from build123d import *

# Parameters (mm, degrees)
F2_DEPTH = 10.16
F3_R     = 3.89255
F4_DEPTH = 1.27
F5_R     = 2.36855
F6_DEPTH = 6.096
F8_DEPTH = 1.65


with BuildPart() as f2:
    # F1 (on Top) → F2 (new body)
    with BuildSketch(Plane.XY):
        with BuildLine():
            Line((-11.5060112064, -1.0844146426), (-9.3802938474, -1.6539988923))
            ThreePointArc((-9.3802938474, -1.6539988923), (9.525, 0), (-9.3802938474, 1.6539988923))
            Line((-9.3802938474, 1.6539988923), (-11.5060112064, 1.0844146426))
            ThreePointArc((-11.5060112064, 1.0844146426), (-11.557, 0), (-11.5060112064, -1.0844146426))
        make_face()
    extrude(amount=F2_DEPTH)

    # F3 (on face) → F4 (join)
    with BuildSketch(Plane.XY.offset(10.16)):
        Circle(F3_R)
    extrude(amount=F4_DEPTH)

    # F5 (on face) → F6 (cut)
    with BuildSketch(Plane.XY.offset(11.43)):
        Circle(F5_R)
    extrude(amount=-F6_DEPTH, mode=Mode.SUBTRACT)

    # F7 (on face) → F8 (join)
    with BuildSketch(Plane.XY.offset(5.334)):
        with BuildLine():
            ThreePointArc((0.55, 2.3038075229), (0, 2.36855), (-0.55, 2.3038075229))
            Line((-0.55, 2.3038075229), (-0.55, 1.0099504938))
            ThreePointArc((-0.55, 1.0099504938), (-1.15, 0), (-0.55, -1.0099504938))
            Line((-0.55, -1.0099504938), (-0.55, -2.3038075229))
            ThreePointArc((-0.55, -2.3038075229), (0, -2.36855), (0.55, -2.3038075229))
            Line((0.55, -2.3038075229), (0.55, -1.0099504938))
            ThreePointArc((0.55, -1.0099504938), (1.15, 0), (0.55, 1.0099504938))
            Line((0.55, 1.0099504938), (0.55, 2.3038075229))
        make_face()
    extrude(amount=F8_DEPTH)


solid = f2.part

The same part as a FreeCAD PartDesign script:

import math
import FreeCAD as App
import Part
import Sketcher
Q = App.Units.Quantity

doc = App.newDocument("Part")
body = doc.addObject("PartDesign::Body", "Body")

sketch1 = body.newObject("Sketcher::SketchObject", "Sketch")
sketch1.AttachmentSupport = (doc.getObject("XY_Plane"), [""])
sketch1.MapMode = "FlatFace"
sketch1.addGeometry([
    Part.LineSegment(App.Vector(-11.506011, -1.084415, 0), App.Vector(-9.380294, -1.653999, 0)),
    Part.ArcOfCircle(Part.Circle(App.Vector(0, 0, 0), App.Vector(0, 0, 1), 9.525), math.radians(-170), math.radians(170)),
    Part.LineSegment(App.Vector(-9.380294, 1.653999, 0), App.Vector(-11.506011, 1.084415, 0)),
    Part.ArcOfCircle(Part.Circle(App.Vector(0, 0, 0), App.Vector(0, 0, 1), 11.557), math.radians(174.615911), math.radians(185.384089)),
], False)
sketch1.addConstraint([
    Sketcher.Constraint("Coincident", 0, 2, 1, 1),
    Sketcher.Constraint("Coincident", 1, 2, 2, 1),
    Sketcher.Constraint("Coincident", 2, 2, 3, 1),
    Sketcher.Constraint("Coincident", 3, 2, 0, 1),
    Sketcher.Constraint("Coincident", 1, 3, -1, 1),
    Sketcher.Constraint("Coincident", 3, 3, -1, 1),
    Sketcher.Constraint("Vertical", 0, 2, 1, 2),
    Sketcher.Constraint("Vertical", 2, 2, 3, 2),
    Sketcher.Constraint("Angle", 0, Q("-15 deg")),
    Sketcher.Constraint("Radius", 1, Q("0.375 in")),
    Sketcher.Constraint("Radius", 3, Q("0.455 in")),
    Sketcher.Constraint("DistanceY", 0, 2, -1, 1, 1.653999),
])
pad1 = body.newObject("PartDesign::Pad", "Pad")
pad1.Profile = sketch1
pad1.Length = Q("0.4 in")

sketch2 = body.newObject("Sketcher::SketchObject", "Sketch001")
sketch2.AttachmentSupport = (doc.getObject("XY_Plane"), [""])
sketch2.MapMode = "FlatFace"
sketch2.AttachmentOffset = App.Placement(App.Vector(0, 0, 0.4 * 25.4), App.Rotation())
sketch2.addGeometry(Part.Circle(App.Vector(0, 0, 0), App.Vector(0, 0, 1), 3.89255), False)
sketch2.addConstraint([
    Sketcher.Constraint("Coincident", 0, 3, -1, 1),
    Sketcher.Constraint("Diameter", 0, Q("0.3065 in")),
])
pad2 = body.newObject("PartDesign::Pad", "Pad001")
pad2.Profile = sketch2
pad2.Length = Q("0.05 in")

sketch3 = body.newObject("Sketcher::SketchObject", "Sketch002")
sketch3.AttachmentSupport = (doc.getObject("XY_Plane"), [""])
sketch3.MapMode = "FlatFace"
sketch3.AttachmentOffset = App.Placement(App.Vector(0, 0, 0.45 * 25.4), App.Rotation())
sketch3.addGeometry(Part.Circle(App.Vector(0, 0, 0), App.Vector(0, 0, 1), 2.36855), False)
sketch3.addConstraint([
    Sketcher.Constraint("Coincident", 0, 3, -1, 1),
    Sketcher.Constraint("Diameter", 0, Q("0.1865 in")),
])
pocket1 = body.newObject("PartDesign::Pocket", "Pocket")
pocket1.Profile = sketch3
pocket1.Length = Q("0.24 in")

sketch4 = body.newObject("Sketcher::SketchObject", "Sketch003")
sketch4.AttachmentSupport = (doc.getObject("XY_Plane"), [""])
sketch4.MapMode = "FlatFace"
sketch4.AttachmentOffset = App.Placement(App.Vector(0, 0, 0.21 * 25.4), App.Rotation())
sketch4.addGeometry([
    Part.ArcOfCircle(Part.Circle(App.Vector(0, 0, 0), App.Vector(0, 0, 1), 2.36855), math.radians(76.572806), math.radians(103.427194)),
    Part.LineSegment(App.Vector(-0.55, 2.303808, 0), App.Vector(-0.55, 1.00995, 0)),
    Part.ArcOfCircle(Part.Circle(App.Vector(0, 0, 0), App.Vector(0, 0, 1), 1.15), math.radians(118.571878), math.radians(241.428122)),
    Part.LineSegment(App.Vector(-0.55, -1.00995, 0), App.Vector(-0.55, -2.303808, 0)),
    Part.ArcOfCircle(Part.Circle(App.Vector(0, 0, 0), App.Vector(0, 0, 1), 2.36855), math.radians(-103.427194), math.radians(-76.572806)),
    Part.LineSegment(App.Vector(0.55, -2.303808, 0), App.Vector(0.55, -1.00995, 0)),
    Part.ArcOfCircle(Part.Circle(App.Vector(0, 0, 0), App.Vector(0, 0, 1), 1.15), math.radians(-61.428122), math.radians(61.428122)),
    Part.LineSegment(App.Vector(0.55, 1.00995, 0), App.Vector(0.55, 2.303808, 0)),
], False)
sketch4.addConstraint([
    Sketcher.Constraint("Coincident", 0, 2, 1, 1),
    Sketcher.Constraint("Coincident", 1, 2, 2, 1),
    Sketcher.Constraint("Coincident", 2, 2, 3, 1),
    Sketcher.Constraint("Coincident", 3, 2, 4, 1),
    Sketcher.Constraint("Coincident", 4, 2, 5, 1),
    Sketcher.Constraint("Coincident", 5, 2, 6, 1),
    Sketcher.Constraint("Coincident", 6, 2, 7, 1),
    Sketcher.Constraint("Coincident", 7, 2, 0, 1),
    Sketcher.Constraint("Vertical", 1),
    Sketcher.Constraint("Vertical", 3),
    Sketcher.Constraint("Vertical", 5),
    Sketcher.Constraint("Vertical", 7),
    Sketcher.Constraint("Coincident", 0, 3, -1, 1),
    Sketcher.Constraint("Coincident", 2, 3, -1, 1),
    Sketcher.Constraint("Coincident", 4, 3, -1, 1),
    Sketcher.Constraint("Coincident", 6, 3, -1, 1),
    Sketcher.Constraint("Equal", 0, 4),
    Sketcher.Constraint("Equal", 2, 6),
    Sketcher.Constraint("Horizontal", 3, 2, 4, 2),
    Sketcher.Constraint("Horizontal", 1, 2, 6, 2),
    Sketcher.Constraint("Vertical", 1, 2, 2, 2),
    Sketcher.Constraint("Radius", 2, 1.15),
    Sketcher.Constraint("Radius", 0, 2.36855),
    Sketcher.Constraint("DistanceX", 0, 2, -1, 1, 0.55),
])
pad3 = body.newObject("PartDesign::Pad", "Pad002")
pad3.Profile = sketch4
pad3.Length = 1.65

doc.recompute()
